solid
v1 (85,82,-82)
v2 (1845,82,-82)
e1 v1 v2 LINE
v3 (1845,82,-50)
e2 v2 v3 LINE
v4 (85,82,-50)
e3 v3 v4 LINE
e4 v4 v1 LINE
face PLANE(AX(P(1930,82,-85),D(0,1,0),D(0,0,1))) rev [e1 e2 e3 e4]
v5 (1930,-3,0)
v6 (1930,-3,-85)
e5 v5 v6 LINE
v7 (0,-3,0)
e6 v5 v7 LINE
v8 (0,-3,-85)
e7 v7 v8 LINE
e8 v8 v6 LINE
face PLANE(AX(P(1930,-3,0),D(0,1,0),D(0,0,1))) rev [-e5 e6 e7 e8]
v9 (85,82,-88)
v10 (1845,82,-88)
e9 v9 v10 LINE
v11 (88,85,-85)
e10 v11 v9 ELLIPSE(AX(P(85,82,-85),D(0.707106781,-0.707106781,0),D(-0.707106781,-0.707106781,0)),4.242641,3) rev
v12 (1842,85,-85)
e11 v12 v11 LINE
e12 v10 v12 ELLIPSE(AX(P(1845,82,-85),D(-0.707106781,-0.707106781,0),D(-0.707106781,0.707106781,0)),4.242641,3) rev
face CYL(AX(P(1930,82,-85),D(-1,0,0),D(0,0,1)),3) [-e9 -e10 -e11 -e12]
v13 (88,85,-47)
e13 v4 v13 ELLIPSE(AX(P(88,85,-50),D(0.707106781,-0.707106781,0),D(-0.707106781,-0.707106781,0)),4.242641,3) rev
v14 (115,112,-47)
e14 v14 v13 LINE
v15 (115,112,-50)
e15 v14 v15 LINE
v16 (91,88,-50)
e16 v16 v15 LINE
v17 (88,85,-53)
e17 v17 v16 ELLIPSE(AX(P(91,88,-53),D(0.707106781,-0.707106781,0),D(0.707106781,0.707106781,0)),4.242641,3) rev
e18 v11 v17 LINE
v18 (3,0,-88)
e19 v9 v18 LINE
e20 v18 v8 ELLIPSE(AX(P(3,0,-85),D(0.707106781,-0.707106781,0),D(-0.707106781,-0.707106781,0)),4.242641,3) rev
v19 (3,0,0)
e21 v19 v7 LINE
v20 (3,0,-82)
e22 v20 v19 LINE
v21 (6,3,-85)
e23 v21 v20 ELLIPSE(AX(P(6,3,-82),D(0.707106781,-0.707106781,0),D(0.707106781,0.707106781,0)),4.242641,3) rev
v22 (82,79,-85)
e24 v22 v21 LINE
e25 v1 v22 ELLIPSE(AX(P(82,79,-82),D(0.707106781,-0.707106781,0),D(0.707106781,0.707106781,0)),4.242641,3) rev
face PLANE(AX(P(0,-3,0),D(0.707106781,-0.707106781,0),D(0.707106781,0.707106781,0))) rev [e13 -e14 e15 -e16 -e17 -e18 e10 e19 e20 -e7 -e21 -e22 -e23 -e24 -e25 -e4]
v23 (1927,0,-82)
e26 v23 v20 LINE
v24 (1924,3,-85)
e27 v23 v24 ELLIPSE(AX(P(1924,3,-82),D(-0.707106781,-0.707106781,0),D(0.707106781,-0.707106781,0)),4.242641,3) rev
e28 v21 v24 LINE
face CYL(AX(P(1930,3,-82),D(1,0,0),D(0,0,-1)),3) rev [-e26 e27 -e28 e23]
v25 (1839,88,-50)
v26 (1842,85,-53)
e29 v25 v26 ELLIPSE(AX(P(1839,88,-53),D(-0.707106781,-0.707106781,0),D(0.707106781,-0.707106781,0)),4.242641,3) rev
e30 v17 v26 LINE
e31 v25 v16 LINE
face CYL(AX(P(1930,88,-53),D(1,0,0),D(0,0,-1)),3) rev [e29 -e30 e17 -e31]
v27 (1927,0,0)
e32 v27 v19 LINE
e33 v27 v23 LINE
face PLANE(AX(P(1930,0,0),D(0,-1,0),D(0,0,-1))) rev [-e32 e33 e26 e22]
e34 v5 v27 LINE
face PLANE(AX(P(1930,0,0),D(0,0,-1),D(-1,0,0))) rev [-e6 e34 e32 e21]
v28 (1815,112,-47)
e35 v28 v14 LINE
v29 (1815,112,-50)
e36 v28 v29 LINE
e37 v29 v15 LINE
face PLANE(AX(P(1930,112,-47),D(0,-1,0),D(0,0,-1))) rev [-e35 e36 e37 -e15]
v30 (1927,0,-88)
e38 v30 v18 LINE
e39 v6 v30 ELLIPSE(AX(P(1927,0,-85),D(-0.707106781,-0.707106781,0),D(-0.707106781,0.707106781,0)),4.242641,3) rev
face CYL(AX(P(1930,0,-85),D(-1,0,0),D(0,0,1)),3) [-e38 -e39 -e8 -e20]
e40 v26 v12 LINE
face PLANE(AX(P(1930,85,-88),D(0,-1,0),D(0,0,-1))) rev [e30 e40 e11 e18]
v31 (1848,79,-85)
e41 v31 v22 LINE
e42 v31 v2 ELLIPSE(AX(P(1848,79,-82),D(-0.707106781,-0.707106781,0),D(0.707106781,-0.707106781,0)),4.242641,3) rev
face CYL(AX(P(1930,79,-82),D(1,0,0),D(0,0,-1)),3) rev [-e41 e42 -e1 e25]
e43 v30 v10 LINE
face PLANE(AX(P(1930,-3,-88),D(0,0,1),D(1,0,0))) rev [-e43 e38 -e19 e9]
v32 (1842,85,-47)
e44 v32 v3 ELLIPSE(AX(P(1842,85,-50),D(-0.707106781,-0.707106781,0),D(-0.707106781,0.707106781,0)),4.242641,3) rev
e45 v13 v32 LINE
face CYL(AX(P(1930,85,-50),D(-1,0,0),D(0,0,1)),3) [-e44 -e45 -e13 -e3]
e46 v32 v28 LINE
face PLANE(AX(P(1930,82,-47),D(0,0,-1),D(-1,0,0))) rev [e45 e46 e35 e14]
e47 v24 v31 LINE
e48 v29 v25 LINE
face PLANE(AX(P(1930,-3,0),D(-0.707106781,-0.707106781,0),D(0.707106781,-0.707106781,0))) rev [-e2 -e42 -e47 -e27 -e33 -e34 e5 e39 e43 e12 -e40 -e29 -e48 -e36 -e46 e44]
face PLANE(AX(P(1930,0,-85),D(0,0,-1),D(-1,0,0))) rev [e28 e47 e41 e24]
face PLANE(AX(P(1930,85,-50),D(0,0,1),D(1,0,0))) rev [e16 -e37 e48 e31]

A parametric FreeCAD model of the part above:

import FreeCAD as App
import Part
import Sketcher
Q = App.Units.Quantity


def edges_at(feature, points):
    """Names of the edges that pass closest to the given points."""
    edges = feature.Shape.Edges
    near = lambda p: min(range(len(edges)), key=lambda i: edges[i].distToShape(Part.Vertex(*p))[0])
    return sorted({f"Edge{near(p) + 1}" for p in points})

doc = App.newDocument("Part")
body = doc.addObject("PartDesign::Body", "Body")

# Sketch on YZ plane
sketch1 = doc.addObject("Sketcher::SketchObject", "Sketch")
body.addObject(sketch1)
sketch1.AttachmentSupport = (doc.YZ_Plane, [""])
sketch1.MapMode = "FlatFace"
sketch1.addGeometry([
    Part.LineSegment(App.Vector(0, -85, 0), App.Vector(0, 0, 0)),  # 0
    Part.LineSegment(App.Vector(0, 0, 0), App.Vector(-3, 0, 0)),  # 1
    Part.LineSegment(App.Vector(-3, 0, 0), App.Vector(-3, -88, 0)),  # 2
    Part.LineSegment(App.Vector(-3, -88, 0), App.Vector(85, -88, 0)),  # 3
    Part.LineSegment(App.Vector(85, -88, 0), App.Vector(85, -50, 0)),  # 4
    Part.LineSegment(App.Vector(85, -50, 0), App.Vector(112, -50, 0)),  # 5
    Part.LineSegment(App.Vector(112, -50, 0), App.Vector(112, -47, 0)),  # 6
    Part.LineSegment(App.Vector(112, -47, 0), App.Vector(82, -47, 0)),  # 7
    Part.LineSegment(App.Vector(82, -47, 0), App.Vector(82, -85, 0)),  # 8
    Part.LineSegment(App.Vector(82, -85, 0), App.Vector(0, -85, 0)),  # 9
], False)
sketch1.addConstraint([
    Sketcher.Constraint("Coincident", 0, 2, 1, 1),
    Sketcher.Constraint("Coincident", 1, 2, 2, 1),
    Sketcher.Constraint("Coincident", 2, 2, 3, 1),
    Sketcher.Constraint("Coincident", 3, 2, 4, 1),
    Sketcher.Constraint("Coincident", 4, 2, 5, 1),
    Sketcher.Constraint("Coincident", 5, 2, 6, 1),
    Sketcher.Constraint("Coincident", 6, 2, 7, 1),
    Sketcher.Constraint("Coincident", 7, 2, 8, 1),
    Sketcher.Constraint("Coincident", 8, 2, 9, 1),
    Sketcher.Constraint("Coincident", 9, 2, 0, 1),
    Sketcher.Constraint("Vertical", 0),
    Sketcher.Constraint("Horizontal", 1),
    Sketcher.Constraint("Vertical", 2),
    Sketcher.Constraint("Horizontal", 3),
    Sketcher.Constraint("Vertical", 4),
    Sketcher.Constraint("Horizontal", 5),
    Sketcher.Constraint("Vertical", 6),
    Sketcher.Constraint("Horizontal", 7),
    Sketcher.Constraint("Vertical", 8),
    Sketcher.Constraint("Horizontal", 9),
    Sketcher.Constraint("Coincident", 0, 2, -1, 1),
    Sketcher.Constraint("Equal", 3, 2),
    Sketcher.Constraint("Equal", 1, 6),
    Sketcher.Constraint("Equal", 4, 8),
    Sketcher.Constraint("DistanceX", 1, 2, 1, 1, Q("3 mm")),
    Sketcher.Constraint("DistanceX", 3, 1, 3, 2, Q("88 mm")),
    Sketcher.Constraint("DistanceX", 5, 1, 5, 2, Q("27 mm")),
    Sketcher.Constraint("DistanceX", 7, 2, 7, 1, Q("30 mm")),
    Sketcher.Constraint("DistanceY", 4, 1, 4, 2, Q("38 mm")),
])
pad1 = doc.addObject("PartDesign::Pad", "Pad")
body.addObject(pad1)
pad1.Profile = sketch1
pad1.Length = 1930
doc.recompute()

fillet = doc.addObject("PartDesign::Fillet", "Fillet")
body.addObject(fillet)
fillet.Base = (pad1, edges_at(pad1, [
    (965, 0, -85),
    (965, 82, -85),
    (965, 82, -47),
    (965, 85, -50),
    (965, 85, -88),
    (965, -3, -88),
]))
fillet.Radius = 3

# Sketch on XY plane
sketch2 = doc.addObject("Sketcher::SketchObject", "Sketch001")
body.addObject(sketch2)
sketch2.AttachmentSupport = (doc.XY_Plane, [""])
sketch2.MapMode = "FlatFace"
sketch2.AttachmentOffset = App.Placement(App.Vector(0, 0, -88), App.Rotation())
sketch2.addGeometry([
    Part.LineSegment(App.Vector(1930, -3, 0), App.Vector(1815, 112, 0)),
    Part.LineSegment(App.Vector(1815, 112, 0), App.Vector(1930, 112, 0)),
    Part.LineSegment(App.Vector(1930, 112, 0), App.Vector(1930, -3, 0)),
], False)
sketch2.addConstraint([
    Sketcher.Constraint("Coincident", 0, 2, 1, 1),
    Sketcher.Constraint("Coincident", 1, 2, 2, 1),
    Sketcher.Constraint("Coincident", 2, 2, 0, 1),
    Sketcher.Constraint("Horizontal", 1),
    Sketcher.Constraint("Vertical", 2),
    Sketcher.Constraint("Equal", 1, 2),
    Sketcher.Constraint("DistanceX", 1, 1, 1, 2, Q("115 mm")),
    Sketcher.Constraint("DistanceX", -1, 1, 0, 2, Q("1815 mm")),
    Sketcher.Constraint("DistanceY", -1, 1, 0, 2, Q("112 mm")),
])
pocket1 = doc.addObject("PartDesign::Pocket", "Pocket")
body.addObject(pocket1)
pocket1.Profile = sketch2
pocket1.Length = 88
pocket1.Reversed = True

# Sketch on XY plane
sketch3 = doc.addObject("Sketcher::SketchObject", "Sketch002")
body.addObject(sketch3)
sketch3.AttachmentSupport = (doc.XY_Plane, [""])
sketch3.MapMode = "FlatFace"
sketch3.AttachmentOffset = App.Placement(App.Vector(0, 0, -88), App.Rotation())
sketch3.addGeometry([
    Part.LineSegment(App.Vector(115, 112, 0), App.Vector(0, -3, 0)),
    Part.LineSegment(App.Vector(0, -3, 0), App.Vector(0, 112, 0)),
    Part.LineSegment(App.Vector(0, 112, 0), App.Vector(115, 112, 0)),
], False)
sketch3.addConstraint([
    Sketcher.Constraint("Coincident", 0, 2, 1, 1),
    Sketcher.Constraint("Coincident", 1, 2, 2, 1),
    Sketcher.Constraint("Coincident", 2, 2, 0, 1),
    Sketcher.Constraint("Vertical", 1),
    Sketcher.Constraint("Horizontal", 2),
    Sketcher.Constraint("PointOnObject", 0, 2, -2),
    Sketcher.Constraint("Equal", 2, 1),
    Sketcher.Constraint("DistanceX", 2, 1, 2, 2, Q("115 mm")),
    Sketcher.Constraint("DistanceY", 0, 2, -1, 1, Q("3 mm")),
])
pocket2 = doc.addObject("PartDesign::Pocket", "Pocket001")
body.addObject(pocket2)
pocket2.Profile = sketch3
pocket2.Length = 88
pocket2.Reversed = True

doc.recompute()
